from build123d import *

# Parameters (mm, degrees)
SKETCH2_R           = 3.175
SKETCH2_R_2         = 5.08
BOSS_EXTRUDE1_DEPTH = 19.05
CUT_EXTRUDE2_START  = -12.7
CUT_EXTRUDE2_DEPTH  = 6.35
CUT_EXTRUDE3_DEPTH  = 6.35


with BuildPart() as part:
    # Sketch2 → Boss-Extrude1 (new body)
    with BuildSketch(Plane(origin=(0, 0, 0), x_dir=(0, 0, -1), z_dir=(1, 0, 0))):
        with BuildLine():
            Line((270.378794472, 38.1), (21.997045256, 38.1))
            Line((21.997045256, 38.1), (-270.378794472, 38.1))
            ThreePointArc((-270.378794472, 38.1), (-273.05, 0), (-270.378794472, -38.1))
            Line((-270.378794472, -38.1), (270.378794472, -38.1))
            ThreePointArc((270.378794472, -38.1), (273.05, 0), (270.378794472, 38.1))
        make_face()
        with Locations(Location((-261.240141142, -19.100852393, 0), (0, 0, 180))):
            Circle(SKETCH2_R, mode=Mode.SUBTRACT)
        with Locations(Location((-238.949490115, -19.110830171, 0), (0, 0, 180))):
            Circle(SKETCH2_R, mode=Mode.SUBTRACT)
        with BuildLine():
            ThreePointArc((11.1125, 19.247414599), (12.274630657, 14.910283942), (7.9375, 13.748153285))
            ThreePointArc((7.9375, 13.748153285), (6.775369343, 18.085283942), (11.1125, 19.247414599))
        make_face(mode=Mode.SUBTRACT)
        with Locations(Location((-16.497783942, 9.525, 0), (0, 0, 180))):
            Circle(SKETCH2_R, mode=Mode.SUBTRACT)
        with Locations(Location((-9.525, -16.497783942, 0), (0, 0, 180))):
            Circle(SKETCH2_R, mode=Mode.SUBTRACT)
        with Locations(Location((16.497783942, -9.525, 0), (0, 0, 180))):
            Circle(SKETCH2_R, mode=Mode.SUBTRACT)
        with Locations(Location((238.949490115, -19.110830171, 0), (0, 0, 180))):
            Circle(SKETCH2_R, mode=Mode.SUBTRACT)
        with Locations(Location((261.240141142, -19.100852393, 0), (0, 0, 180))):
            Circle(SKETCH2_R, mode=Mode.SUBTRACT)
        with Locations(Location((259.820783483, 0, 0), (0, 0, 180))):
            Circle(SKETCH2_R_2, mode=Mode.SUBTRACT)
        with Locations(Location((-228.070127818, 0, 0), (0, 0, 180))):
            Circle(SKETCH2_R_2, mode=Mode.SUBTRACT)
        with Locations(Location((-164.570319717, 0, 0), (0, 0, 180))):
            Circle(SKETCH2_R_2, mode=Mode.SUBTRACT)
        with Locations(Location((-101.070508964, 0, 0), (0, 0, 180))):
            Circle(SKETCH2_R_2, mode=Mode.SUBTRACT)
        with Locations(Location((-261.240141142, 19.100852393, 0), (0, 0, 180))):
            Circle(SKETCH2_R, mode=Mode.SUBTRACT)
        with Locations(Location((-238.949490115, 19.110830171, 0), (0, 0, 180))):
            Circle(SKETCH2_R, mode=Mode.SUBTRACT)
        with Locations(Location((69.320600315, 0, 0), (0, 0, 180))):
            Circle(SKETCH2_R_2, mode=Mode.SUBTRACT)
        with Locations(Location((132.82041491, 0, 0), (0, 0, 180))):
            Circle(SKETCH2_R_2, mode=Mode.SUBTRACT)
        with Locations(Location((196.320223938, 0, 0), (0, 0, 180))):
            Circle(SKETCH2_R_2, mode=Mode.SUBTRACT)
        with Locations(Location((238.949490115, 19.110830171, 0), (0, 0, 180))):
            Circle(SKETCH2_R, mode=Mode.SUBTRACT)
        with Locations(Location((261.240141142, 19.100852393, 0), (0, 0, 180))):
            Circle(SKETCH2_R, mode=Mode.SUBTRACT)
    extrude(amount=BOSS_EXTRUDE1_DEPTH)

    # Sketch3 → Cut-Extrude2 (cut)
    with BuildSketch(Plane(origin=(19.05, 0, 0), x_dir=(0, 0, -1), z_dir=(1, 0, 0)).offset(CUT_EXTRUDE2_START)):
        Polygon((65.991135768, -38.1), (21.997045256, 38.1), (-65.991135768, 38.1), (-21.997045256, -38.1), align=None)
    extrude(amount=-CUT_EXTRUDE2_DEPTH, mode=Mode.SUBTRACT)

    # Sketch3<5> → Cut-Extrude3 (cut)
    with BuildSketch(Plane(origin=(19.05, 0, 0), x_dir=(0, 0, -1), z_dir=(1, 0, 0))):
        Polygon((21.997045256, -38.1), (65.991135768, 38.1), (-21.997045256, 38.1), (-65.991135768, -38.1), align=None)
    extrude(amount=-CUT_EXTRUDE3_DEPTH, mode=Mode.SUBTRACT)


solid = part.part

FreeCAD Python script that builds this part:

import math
import FreeCAD as App
import Part
import Sketcher
from FreeCAD import Vector
Q = App.Units.Quantity


def add_polygon(sketch, points):
    """Adds a closed chain of lines whose ends are joined by coincident constraints."""
    first, n = sketch.GeometryCount, len(points)
    for a, b in zip(points, points[1:] + points[:1]):
        sketch.addGeometry(Part.LineSegment(App.Vector(*a, 0), App.Vector(*b, 0)), False)
    for i in range(n):
        sketch.addConstraint(Sketcher.Constraint("Coincident", first + i, 2, first + (i + 1) % n, 1))

doc = App.newDocument("Part")
body = doc.addObject("PartDesign::Body", "Body")

sketch1 = body.newObject("Sketcher::SketchObject", "Sketch")
sketch1.AttachmentSupport = (doc.getObject("YZ_Plane"), [""])
sketch1.MapMode = "FlatFace"
sketch1.addGeometry(Part.LineSegment(Vector(38.1, -270.378794, 0), Vector(38.1, 270.378794, 0)), False)
sketch1.addGeometry(Part.ArcOfCircle(Part.Circle(Vector(0, 0, 0), Vector(0, 0, 1), 273.05), math.radians(81.979067), math.radians(98.020933)), False)
sketch1.addGeometry(Part.LineSegment(Vector(-38.1, 270.378794, 0), Vector(-38.1, -270.378794, 0)), False)
sketch1.addGeometry(Part.ArcOfCircle(Part.Circle(Vector(0, 0, 0), Vector(0, 0, 1), 273.05), math.radians(-98.020933), math.radians(-81.979067)), False)
sketch1.addGeometry(Part.Circle(Vector(-19.100852, 261.240141, 0), Vector(0, 0, 1), 3.175), False)
sketch1.addGeometry(Part.Circle(Vector(-19.11083, 238.94949, 0), Vector(0, 0, 1), 3.175), False)
sketch1.addGeometry(Part.Circle(Vector(-16.497784, 9.525, 0), Vector(0, 0, 1), 3.175), False)
sketch1.addGeometry(Part.Circle(Vector(-19.11083, -238.94949, 0), Vector(0, 0, 1), 3.175), False)
sketch1.addGeometry(Part.Circle(Vector(-19.100852, -261.240141, 0), Vector(0, 0, 1), 3.175), False)
sketch1.addGeometry(Part.Circle(Vector(-9.525, -16.497784, 0), Vector(0, 0, 1), 3.175), False)
sketch1.addGeometry(Part.Circle(Vector(0, 228.070128, 0), Vector(0, 0, 1), 5.08), False)
sketch1.addGeometry(Part.Circle(Vector(0, 164.57032, 0), Vector(0, 0, 1), 5.08), False)
sketch1.addGeometry(Part.Circle(Vector(0, 101.070509, 0), Vector(0, 0, 1), 5.08), False)
sketch1.addGeometry(Part.Circle(Vector(9.525, 16.497784, 0), Vector(0, 0, 1), 3.175), False)
sketch1.addGeometry(Part.Circle(Vector(19.100852, 261.240141, 0), Vector(0, 0, 1), 3.175), False)
sketch1.addGeometry(Part.Circle(Vector(19.11083, 238.94949, 0), Vector(0, 0, 1), 3.175), False)
sketch1.addGeometry(Part.Circle(Vector(0, -69.3206, 0), Vector(0, 0, 1), 5.08), False)
sketch1.addGeometry(Part.Circle(Vector(0, -132.820415, 0), Vector(0, 0, 1), 5.08), False)
sketch1.addGeometry(Part.Circle(Vector(0, -196.320224, 0), Vector(0, 0, 1), 5.08), False)
sketch1.addGeometry(Part.Circle(Vector(0, -259.820783, 0), Vector(0, 0, 1), 5.08), False)
sketch1.addGeometry(Part.Circle(Vector(16.497784, -9.525, 0), Vector(0, 0, 1), 3.175), False)
sketch1.addGeometry(Part.Circle(Vector(19.11083, -238.94949, 0), Vector(0, 0, 1), 3.175), False)
sketch1.addGeometry(Part.Circle(Vector(19.100852, -261.240141, 0), Vector(0, 0, 1), 3.175), False)
sketch1.addConstraint(Sketcher.Constraint("Coincident", 0, 2, 1, 1))
sketch1.addConstraint(Sketcher.Constraint("Coincident", 1, 2, 2, 1))
sketch1.addConstraint(Sketcher.Constraint("Coincident", 2, 2, 3, 1))
sketch1.addConstraint(Sketcher.Constraint("Coincident", 3, 2, 0, 1))
sketch1.addConstraint(Sketcher.Constraint("Vertical", 0))
sketch1.addConstraint(Sketcher.Constraint("Vertical", 2))
sketch1.addConstraint(Sketcher.Constraint("Coincident", 1, 3, -1, 1))
sketch1.addConstraint(Sketcher.Constraint("Coincident", 3, 3, -1, 1))
sketch1.addConstraint(Sketcher.Constraint("Equal", 1, 3))
sketch1.addConstraint(Sketcher.Constraint("Equal", 4, 5))
sketch1.addConstraint(Sketcher.Constraint("Equal", 5, 6))
sketch1.addConstraint(Sketcher.Constraint("Equal", 6, 7))
sketch1.addConstraint(Sketcher.Constraint("Equal", 7, 8))
sketch1.addConstraint(Sketcher.Constraint("Equal", 8, 9))
sketch1.addConstraint(Sketcher.Constraint("Equal", 10, 11))
sketch1.addConstraint(Sketcher.Constraint("Equal", 11, 12))
sketch1.addConstraint(Sketcher.Constraint("Equal", 9, 13))
sketch1.addConstraint(Sketcher.Constraint("Equal", 13, 14))
sketch1.addConstraint(Sketcher.Constraint("Equal", 14, 15))
sketch1.addConstraint(Sketcher.Constraint("Equal", 12, 16))
sketch1.addConstraint(Sketcher.Constraint("Equal", 16, 17))
sketch1.addConstraint(Sketcher.Constraint("Equal", 17, 18))
sketch1.addConstraint(Sketcher.Constraint("Equal", 18, 19))
sketch1.addConstraint(Sketcher.Constraint("Equal", 15, 20))
sketch1.addConstraint(Sketcher.Constraint("Equal", 20, 21))
sketch1.addConstraint(Sketcher.Constraint("Equal", 21, 22))
sketch1.addConstraint(Sketcher.Constraint("Symmetric", 9, 3, 13, 3, -1, 1))
sketch1.addConstraint(Sketcher.Constraint("Symmetric", 8, 3, 14, 3, -1, 1))
sketch1.addConstraint(Sketcher.Constraint("Symmetric", 7, 3, 15, 3, -1, 1))
sketch1.addConstraint(Sketcher.Constraint("Symmetric", 6, 3, 20, 3, -1, 1))
sketch1.addConstraint(Sketcher.Constraint("Symmetric", 5, 3, 21, 3, -1, 1))
sketch1.addConstraint(Sketcher.Constraint("Symmetric", 4, 3, 22, 3, -1, 1))
sketch1.addConstraint(Sketcher.Constraint("Symmetric", 4, 3, 14, 3, -2))
sketch1.addConstraint(Sketcher.Constraint("Symmetric", 5, 3, 15, 3, -2))
sketch1.addConstraint(Sketcher.Constraint("PointOnObject", 10, 3, -2))
sketch1.addConstraint(Sketcher.Constraint("PointOnObject", 11, 3, -2))
sketch1.addConstraint(Sketcher.Constraint("PointOnObject", 12, 3, -2))
sketch1.addConstraint(Sketcher.Constraint("PointOnObject", 16, 3, -2))
sketch1.addConstraint(Sketcher.Constraint("PointOnObject", 17, 3, -2))
sketch1.addConstraint(Sketcher.Constraint("PointOnObject", 18, 3, -2))
sketch1.addConstraint(Sketcher.Constraint("PointOnObject", 19, 3, -2))
sketch1.addConstraint(Sketcher.Constraint("Horizontal", 0, 2, 1, 2))
sketch1.addConstraint(Sketcher.Constraint("Diameter", 10, Q("0.4 in")))
sketch1.addConstraint(Sketcher.Constraint("Diameter", 4, Q("0.25 in")))
sketch1.addConstraint(Sketcher.Constraint("Radius", 1, Q("10.75 in")))
sketch1.addConstraint(Sketcher.Constraint("DistanceX", -1, 1, 0, 2, Q("1.5 in")))
sketch1.addConstraint(Sketcher.Constraint("DistanceX", 9, 3, 13, 3, Q("0.75 in")))
sketch1.addConstraint(Sketcher.Constraint("DistanceY", 20, 3, 6, 3, Q("0.75 in")))
sketch1.addConstraint(Sketcher.Constraint("DistanceY", 16, 3, -1, 1, 69.3206))
sketch1.addConstraint(Sketcher.Constraint("DistanceY", -1, 1, 4, 3, 261.240141))
sketch1.addConstraint(Sketcher.Constraint("DistanceX", 5, 3, -1, 1, 19.11083))
sketch1.addConstraint(Sketcher.Constraint("DistanceY", -1, 1, 5, 3, 238.94949))
sketch1.addConstraint(Sketcher.Constraint("DistanceY", -1, 1, 11, 3, 164.57032))
sketch1.addConstraint(Sketcher.Constraint("DistanceY", -1, 1, 12, 3, 101.070509))
sketch1.addConstraint(Sketcher.Constraint("DistanceX", 4, 3, 6, 3, 2.603068))
sketch1.addConstraint(Sketcher.Constraint("DistanceY", 11, 3, 10, 3, 63.499808))
sketch1.addConstraint(Sketcher.Constraint("DistanceY", 17, 3, 9, 3, 116.322631))
sketch1.addConstraint(Sketcher.Constraint("DistanceY", 18, 3, 17, 3, 63.499809))
sketch1.addConstraint(Sketcher.Constraint("DistanceY", 19, 3, 18, 3, 63.50056))
sketch1.addConstraint(Sketcher.Constraint("DistanceY", 2, 2, 19, 3, 10.558011))
sketch1.addConstraint(Sketcher.Constraint("DistanceX", 4, 3, -1, 1, 19.100852))
pad1 = body.newObject("PartDesign::Pad", "Pad")
pad1.Profile = sketch1
pad1.Length = Q("0.75 in")

sketch2 = body.newObject("Sketcher::SketchObject", "Sketch001")
sketch2.AttachmentSupport = (doc.getObject("YZ_Plane"), [""])
sketch2.MapMode = "FlatFace"
sketch2.AttachmentOffset = App.Placement(Vector(0, 0, 0.25 * 25.4), App.Rotation())
add_polygon(sketch2, [(-38.1, -65.991136), (38.1, -21.997045), (38.1, 65.991136), (-38.1, 21.997045)])
sketch2.addConstraint(Sketcher.Constraint("Vertical", 1))
sketch2.addConstraint(Sketcher.Constraint("Vertical", 3))
sketch2.addConstraint(Sketcher.Constraint("Symmetric", 0, 2, 2, 2, -1, 1))
sketch2.addConstraint(Sketcher.Constraint("Parallel", 0, 2))
sketch2.addConstraint(Sketcher.Constraint("Angle", 0, Q("30 deg")))
sketch2.addConstraint(Sketcher.Constraint("DistanceX", 2, 2, 0, 2, Q("3 in")))
sketch2.addConstraint(Sketcher.Constraint("DistanceY", 1, 1, 1, 2, 87.988181))
pocket1 = body.newObject("PartDesign::Pocket", "Pocket")
pocket1.Profile = sketch2
pocket1.Length = Q("0.25 in")

sketch3 = body.newObject("Sketcher::SketchObject", "Sketch002")
sketch3.AttachmentSupport = (doc.getObject("YZ_Plane"), [""])
sketch3.MapMode = "FlatFace"
sketch3.AttachmentOffset = App.Placement(Vector(0, 0, 0.75 * 25.4), App.Rotation())
add_polygon(sketch3, [(-38.1, -21.997045), (38.1, -65.991136), (38.1, 21.997045), (-38.1, 65.991136)])
sketch3.addConstraint(Sketcher.Constraint("Vertical", 1))
sketch3.addConstraint(Sketcher.Constraint("Vertical", 3))
sketch3.addConstraint(Sketcher.Constraint("Symmetric", 0, 2, 2, 2, -1, 1))
sketch3.addConstraint(Sketcher.Constraint("Parallel", 0, 2))
sketch3.addConstraint(Sketcher.Constraint("Angle", 0, Q("-30 deg")))
sketch3.addConstraint(Sketcher.Constraint("DistanceX", 2, 2, 1, 2, Q("3 in")))
sketch3.addConstraint(Sketcher.Constraint("DistanceY", 1, 1, 1, 2, 87.988181))
pocket2 = body.newObject("PartDesign::Pocket", "Pocket001")
pocket2.Profile = sketch3
pocket2.Length = Q("0.25 in")

doc.recompute()
